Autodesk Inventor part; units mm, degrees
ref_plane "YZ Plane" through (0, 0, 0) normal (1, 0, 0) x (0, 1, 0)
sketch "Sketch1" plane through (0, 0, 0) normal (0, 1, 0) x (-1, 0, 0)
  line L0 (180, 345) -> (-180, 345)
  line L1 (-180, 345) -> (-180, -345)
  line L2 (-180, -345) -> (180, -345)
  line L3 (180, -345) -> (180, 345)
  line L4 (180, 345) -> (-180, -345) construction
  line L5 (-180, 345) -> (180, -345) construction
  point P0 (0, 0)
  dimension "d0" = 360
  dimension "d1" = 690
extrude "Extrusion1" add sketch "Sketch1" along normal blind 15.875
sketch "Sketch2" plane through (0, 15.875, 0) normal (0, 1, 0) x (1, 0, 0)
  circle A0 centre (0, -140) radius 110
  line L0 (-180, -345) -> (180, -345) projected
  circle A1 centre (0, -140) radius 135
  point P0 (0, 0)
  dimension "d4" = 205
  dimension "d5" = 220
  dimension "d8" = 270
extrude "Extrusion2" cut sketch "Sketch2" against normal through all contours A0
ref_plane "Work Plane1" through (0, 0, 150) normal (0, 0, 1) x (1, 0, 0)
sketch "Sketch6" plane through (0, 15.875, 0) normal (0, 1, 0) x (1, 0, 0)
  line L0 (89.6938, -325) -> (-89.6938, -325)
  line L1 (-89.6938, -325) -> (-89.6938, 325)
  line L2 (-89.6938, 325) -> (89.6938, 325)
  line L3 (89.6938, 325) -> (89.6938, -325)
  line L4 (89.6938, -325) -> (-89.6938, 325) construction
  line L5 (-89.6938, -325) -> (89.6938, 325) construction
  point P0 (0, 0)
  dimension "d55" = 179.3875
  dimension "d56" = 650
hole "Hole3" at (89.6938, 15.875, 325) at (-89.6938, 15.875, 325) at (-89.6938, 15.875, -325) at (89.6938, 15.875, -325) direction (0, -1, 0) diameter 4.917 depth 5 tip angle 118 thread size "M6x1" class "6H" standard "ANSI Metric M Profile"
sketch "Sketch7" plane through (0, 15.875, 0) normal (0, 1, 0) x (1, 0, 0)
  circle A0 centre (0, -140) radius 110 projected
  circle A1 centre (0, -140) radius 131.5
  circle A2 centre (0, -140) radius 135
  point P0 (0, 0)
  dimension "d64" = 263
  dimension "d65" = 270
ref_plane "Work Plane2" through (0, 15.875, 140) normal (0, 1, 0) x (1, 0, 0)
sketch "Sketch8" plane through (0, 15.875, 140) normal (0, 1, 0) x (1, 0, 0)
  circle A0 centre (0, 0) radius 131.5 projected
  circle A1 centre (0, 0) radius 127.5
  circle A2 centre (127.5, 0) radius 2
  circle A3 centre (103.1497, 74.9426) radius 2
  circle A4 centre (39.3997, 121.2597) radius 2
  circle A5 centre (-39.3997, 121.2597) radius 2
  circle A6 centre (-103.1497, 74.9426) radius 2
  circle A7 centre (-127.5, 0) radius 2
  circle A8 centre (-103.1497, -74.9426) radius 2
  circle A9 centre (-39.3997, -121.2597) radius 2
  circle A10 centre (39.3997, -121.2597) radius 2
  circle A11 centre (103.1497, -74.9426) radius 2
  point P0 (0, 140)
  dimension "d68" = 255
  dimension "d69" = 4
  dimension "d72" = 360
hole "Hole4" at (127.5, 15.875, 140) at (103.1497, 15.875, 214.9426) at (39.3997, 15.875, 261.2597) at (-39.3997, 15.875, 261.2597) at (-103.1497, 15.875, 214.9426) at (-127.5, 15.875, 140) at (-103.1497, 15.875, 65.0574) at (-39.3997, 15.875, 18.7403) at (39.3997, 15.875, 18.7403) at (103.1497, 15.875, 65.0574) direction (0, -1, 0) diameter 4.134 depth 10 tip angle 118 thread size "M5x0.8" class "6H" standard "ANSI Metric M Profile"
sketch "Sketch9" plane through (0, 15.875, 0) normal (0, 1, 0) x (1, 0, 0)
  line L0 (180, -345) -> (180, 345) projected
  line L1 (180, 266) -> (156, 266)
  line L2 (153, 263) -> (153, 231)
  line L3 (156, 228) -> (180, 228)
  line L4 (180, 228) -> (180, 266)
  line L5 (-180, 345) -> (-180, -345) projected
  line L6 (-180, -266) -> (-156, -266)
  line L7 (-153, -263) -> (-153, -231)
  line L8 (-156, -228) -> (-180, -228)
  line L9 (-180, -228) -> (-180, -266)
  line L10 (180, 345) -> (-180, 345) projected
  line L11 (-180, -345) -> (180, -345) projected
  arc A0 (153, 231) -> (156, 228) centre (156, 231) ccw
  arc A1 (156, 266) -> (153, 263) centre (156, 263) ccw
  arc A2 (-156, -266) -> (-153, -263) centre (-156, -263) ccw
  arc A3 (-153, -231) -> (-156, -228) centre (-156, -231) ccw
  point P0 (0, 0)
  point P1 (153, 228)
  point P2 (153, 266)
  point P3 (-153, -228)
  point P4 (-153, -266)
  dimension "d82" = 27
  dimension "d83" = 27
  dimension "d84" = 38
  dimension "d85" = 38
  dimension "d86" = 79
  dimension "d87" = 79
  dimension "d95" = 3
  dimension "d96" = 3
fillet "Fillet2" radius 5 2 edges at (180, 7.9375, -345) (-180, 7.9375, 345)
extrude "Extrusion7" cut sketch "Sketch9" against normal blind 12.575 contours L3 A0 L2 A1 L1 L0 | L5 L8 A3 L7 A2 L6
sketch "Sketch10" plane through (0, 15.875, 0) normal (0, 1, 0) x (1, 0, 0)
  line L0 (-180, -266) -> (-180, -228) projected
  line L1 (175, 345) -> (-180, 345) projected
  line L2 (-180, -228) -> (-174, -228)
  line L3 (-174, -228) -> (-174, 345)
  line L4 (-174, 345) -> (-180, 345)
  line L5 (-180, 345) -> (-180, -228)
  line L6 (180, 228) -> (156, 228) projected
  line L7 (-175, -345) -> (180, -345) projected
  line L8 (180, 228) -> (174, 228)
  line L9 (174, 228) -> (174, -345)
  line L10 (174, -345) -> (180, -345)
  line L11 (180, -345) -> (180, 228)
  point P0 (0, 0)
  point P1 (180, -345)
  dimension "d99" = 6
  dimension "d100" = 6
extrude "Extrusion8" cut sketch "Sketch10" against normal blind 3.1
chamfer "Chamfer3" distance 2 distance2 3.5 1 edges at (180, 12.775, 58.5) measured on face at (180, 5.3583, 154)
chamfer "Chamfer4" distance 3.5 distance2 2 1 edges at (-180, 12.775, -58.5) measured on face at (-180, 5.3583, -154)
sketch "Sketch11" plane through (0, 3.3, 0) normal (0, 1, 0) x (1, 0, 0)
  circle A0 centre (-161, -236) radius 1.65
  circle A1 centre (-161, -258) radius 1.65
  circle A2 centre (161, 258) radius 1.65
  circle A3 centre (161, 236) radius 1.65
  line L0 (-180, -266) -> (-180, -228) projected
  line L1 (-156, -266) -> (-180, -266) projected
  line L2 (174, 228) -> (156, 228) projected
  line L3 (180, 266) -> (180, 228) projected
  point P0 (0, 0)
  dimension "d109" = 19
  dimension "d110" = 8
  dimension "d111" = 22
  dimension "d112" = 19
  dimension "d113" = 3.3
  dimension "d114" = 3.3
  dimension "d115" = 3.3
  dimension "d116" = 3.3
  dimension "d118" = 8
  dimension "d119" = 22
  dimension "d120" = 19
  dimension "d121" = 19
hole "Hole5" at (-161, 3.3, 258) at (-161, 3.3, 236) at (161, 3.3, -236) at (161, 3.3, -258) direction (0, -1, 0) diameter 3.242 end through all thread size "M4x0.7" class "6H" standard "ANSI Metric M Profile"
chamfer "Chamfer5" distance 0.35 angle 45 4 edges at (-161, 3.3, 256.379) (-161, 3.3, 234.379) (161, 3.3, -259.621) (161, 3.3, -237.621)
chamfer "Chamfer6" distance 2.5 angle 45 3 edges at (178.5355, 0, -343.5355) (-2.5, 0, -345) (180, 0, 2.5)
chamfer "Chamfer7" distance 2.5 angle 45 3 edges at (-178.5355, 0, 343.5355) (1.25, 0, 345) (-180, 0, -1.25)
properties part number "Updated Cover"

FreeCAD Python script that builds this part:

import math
import FreeCAD as App
import Part
import Sketcher

V = App.Vector


def edges_at(feature, points):
    """Names of the edges that pass closest to the given points."""
    edges = feature.Shape.Edges
    near = lambda p: min(range(len(edges)), key=lambda i: edges[i].distToShape(Part.Vertex(*p))[0])
    return sorted({f"Edge{near(p) + 1}" for p in points})

doc = App.newDocument("Part")
params = doc.addObject("Spreadsheet::Sheet", "Params")
for row, (alias, value) in enumerate([
    ("sketch1_width", "360 mm"),
    ("sketch1_height", "690 mm"),
    ("pad1_length", "15.875 mm"),
    ("sketch2_diameter", "220 mm"),
    ("hole_diameter", "4.917 mm"),
    ("hole_depth", "5 mm"),
    ("hole2_diameter", "4.134 mm"),
    ("hole2_depth", "10 mm"),
    ("fillet_radius", "5 mm"),
    ("sketch5_radius", "3 mm"),
    ("sketch5_height", "38 mm"),
    ("pocket2_length", "12.575 mm"),
    ("sketch6_width", "6 mm"),
    ("sketch6_height", "573 mm"),
    ("pocket3_length", "3.1 mm"),
    ("chamfer_size", "2 mm"),
    ("chamfer_size2", "3.5 mm"),
    ("chamfer2_size", "3.5 mm"),
    ("chamfer2_size2", "2 mm"),
    ("hole3_diameter", "3.242 mm"),
    ("chamfer3_size", "0.35 mm"),
    ("chamfer4_size", "2.5 mm"),
    ("chamfer5_size", "2.5 mm"),
], start=1):
    params.set(f"A{row}", alias)
    params.set(f"B{row}", "=" + value)
    params.setAlias(f"B{row}", alias)

body = doc.addObject("PartDesign::Body", "Body")

# Sketch on XZ plane
sketch1 = body.newObject("Sketcher::SketchObject", "Sketch")
sketch1.AttachmentSupport = (doc.getObject("XZ_Plane"), [""])
sketch1.MapMode = "FlatFace"
sketch1.addGeometry([
    Part.LineSegment(V(-180, -345, 0), V(-180, 345, 0)),
    Part.LineSegment(V(-180, 345, 0), V(180, 345, 0)),
    Part.LineSegment(V(180, 345, 0), V(180, -345, 0)),
    Part.LineSegment(V(180, -345, 0), V(-180, -345, 0)),
], False)
sketch1.addConstraint([
    Sketcher.Constraint("Coincident", 0, 2, 1, 1),
    Sketcher.Constraint("Coincident", 1, 2, 2, 1),
    Sketcher.Constraint("Coincident", 2, 2, 3, 1),
    Sketcher.Constraint("Coincident", 3, 2, 0, 1),
    Sketcher.Constraint("Vertical", 0),
    Sketcher.Constraint("Horizontal", 1),
    Sketcher.Constraint("Vertical", 2),
    Sketcher.Constraint("Horizontal", 3),
    Sketcher.Constraint("Symmetric", 0, 2, 2, 2, -1, 1),
    Sketcher.Constraint("DistanceX", 1, 1, 1, 2, 360.0),
    Sketcher.Constraint("DistanceY", 0, 1, 0, 2, 690.0),
])
sketch1.setExpression("Constraints[9]", "Params.sketch1_width")
sketch1.setExpression("Constraints[10]", "Params.sketch1_height")
pad1 = body.newObject("PartDesign::Pad", "Pad")
pad1.Profile = sketch1
pad1.setExpression("Length", "Params.pad1_length")
pad1.Reversed = True

# Sketch on XZ plane
sketch2 = body.newObject("Sketcher::SketchObject", "Sketch001")
sketch2.AttachmentSupport = (doc.getObject("XZ_Plane"), [""])
sketch2.MapMode = "FlatFace"
sketch2.AttachmentOffset = App.Placement(V(0, 0, -15.875), App.Rotation())
sketch2.addGeometry(Part.Circle(V(0, 140, 0), V(0, 0, 1), 110), False)
sketch2.addConstraint([
    Sketcher.Constraint("PointOnObject", 0, 3, -2),
    Sketcher.Constraint("Diameter", 0, 220.0),
    Sketcher.Constraint("DistanceY", -1, 1, 0, 3, 140.0),
])
sketch2.setExpression("Constraints[1]", "Params.sketch2_diameter")
pocket1 = body.newObject("PartDesign::Pocket", "Pocket")
pocket1.Profile = sketch2
pocket1.Type = "ThroughAll"
pocket1.Reversed = True

# Sketch on XZ plane
sketch3 = body.newObject("Sketcher::SketchObject", "Sketch002")
sketch3.AttachmentSupport = (doc.getObject("XZ_Plane"), [""])
sketch3.MapMode = "FlatFace"
sketch3.AttachmentOffset = App.Placement(V(0, 0, -15.875), App.Rotation())
sketch3.addGeometry([
    Part.Circle(V(89.6938, 325, 0), V(0, 0, 1), 2.4585),
    Part.Circle(V(-89.6938, 325, 0), V(0, 0, 1), 2.4585),
    Part.Circle(V(-89.6938, -325, 0), V(0, 0, 1), 2.4585),
    Part.Circle(V(89.6938, -325, 0), V(0, 0, 1), 2.4585),
], False)
sketch3.addConstraint([
    Sketcher.Constraint("Equal", 0, 1),
    Sketcher.Constraint("Equal", 1, 2),
    Sketcher.Constraint("Equal", 2, 3),
    Sketcher.Constraint("Symmetric", 0, 3, 2, 3, -1, 1),
    Sketcher.Constraint("Symmetric", 1, 3, 3, 3, -1, 1),
    Sketcher.Constraint("Symmetric", 0, 3, 1, 3, -2),
    Sketcher.Constraint("Diameter", 0, 4.917),
    Sketcher.Constraint("DistanceY", -1, 1, 0, 3, 325.0),
    Sketcher.Constraint("DistanceX", -1, 1, 0, 3, 89.6938),
])
doc.recompute()
hole = body.newObject("PartDesign::Hole", "Hole")
hole.Profile = sketch3
hole.ThreadType = "None"
hole.setExpression("Diameter", "Params.hole_diameter")
hole.DepthType = "Dimension"
hole.setExpression("Depth", "Params.hole_depth")
hole.DrillPoint = "Angled"
hole.DrillPointAngle = 118
hole.Reversed = True

# Sketch on XZ plane
sketch4 = body.newObject("Sketcher::SketchObject", "Sketch003")
sketch4.AttachmentSupport = (doc.getObject("XZ_Plane"), [""])
sketch4.MapMode = "FlatFace"
sketch4.AttachmentOffset = App.Placement(V(0, 0, -15.875), App.Rotation())
sketch4.addGeometry([
    Part.Circle(V(127.5, 140, 0), V(0, 0, 1), 2.067),  # 0
    Part.Circle(V(103.1497, 214.9426, 0), V(0, 0, 1), 2.067),  # 1
    Part.Circle(V(39.3997, 261.2597, 0), V(0, 0, 1), 2.067),  # 2
    Part.Circle(V(-39.3997, 261.2597, 0), V(0, 0, 1), 2.067),  # 3
    Part.Circle(V(-103.1497, 214.9426, 0), V(0, 0, 1), 2.067),  # 4
    Part.Circle(V(-127.5, 140, 0), V(0, 0, 1), 2.067),  # 5
    Part.Circle(V(-103.1497, 65.0574, 0), V(0, 0, 1), 2.067),  # 6
    Part.Circle(V(-39.3997, 18.7403, 0), V(0, 0, 1), 2.067),  # 7
    Part.Circle(V(39.3997, 18.7403, 0), V(0, 0, 1), 2.067),  # 8
    Part.Circle(V(103.1497, 65.0574, 0), V(0, 0, 1), 2.067),  # 9
], False)
sketch4.addConstraint([
    Sketcher.Constraint("Equal", 0, 1),
    Sketcher.Constraint("Equal", 1, 2),
    Sketcher.Constraint("Equal", 2, 3),
    Sketcher.Constraint("Equal", 3, 4),
    Sketcher.Constraint("Equal", 4, 5),
    Sketcher.Constraint("Equal", 5, 6),
    Sketcher.Constraint("Equal", 6, 7),
    Sketcher.Constraint("Equal", 7, 8),
    Sketcher.Constraint("Equal", 8, 9),
    Sketcher.Constraint("Symmetric", 2, 3, 3, 3, -2),
    Sketcher.Constraint("Symmetric", 1, 3, 4, 3, -2),
    Sketcher.Constraint("Symmetric", 0, 3, 5, 3, -2),
    Sketcher.Constraint("Symmetric", 7, 3, 8, 3, -2),
    Sketcher.Constraint("Symmetric", 6, 3, 9, 3, -2),
    Sketcher.Constraint("Vertical", 4, 3, 6, 3),
    Sketcher.Constraint("Vertical", 3, 3, 7, 3),
    Sketcher.Constraint("Diameter", 0, 4.134),
    Sketcher.Constraint("DistanceY", -1, 1, 0, 3, 140.0),
    Sketcher.Constraint("DistanceX", 5, 3, 0, 3, 255.0),
    Sketcher.Constraint("DistanceX", 2, 3, 1, 3, 63.75),
    Sketcher.Constraint("DistanceY", 1, 3, 2, 3, 46.317),
    Sketcher.Constraint("DistanceY", 7, 3, 6, 3, 46.317),
    Sketcher.Constraint("DistanceX", -1, 1, 1, 3, 103.1497),
    Sketcher.Constraint("DistanceY", -1, 1, 1, 3, 214.9426),
    Sketcher.Constraint("DistanceY", -1, 1, 6, 3, 65.0574),
])
doc.recompute()
hole2 = body.newObject("PartDesign::Hole", "Hole001")
hole2.Profile = sketch4
hole2.ThreadType = "None"
hole2.setExpression("Diameter", "Params.hole2_diameter")
hole2.DepthType = "Dimension"
hole2.setExpression("Depth", "Params.hole2_depth")
hole2.DrillPoint = "Angled"
hole2.DrillPointAngle = 118
hole2.Reversed = True
doc.recompute()

fillet = body.newObject("PartDesign::Fillet", "Fillet")
fillet.Base = (hole2, edges_at(hole2, [(180, 7.938, -345), (-180, 7.938, 345)]))
fillet.setExpression("Radius", "Params.fillet_radius")

# Sketch on XZ plane
sketch5 = body.newObject("Sketcher::SketchObject", "Sketch004")
sketch5.AttachmentSupport = (doc.getObject("XZ_Plane"), [""])
sketch5.MapMode = "FlatFace"
sketch5.AttachmentOffset = App.Placement(V(0, 0, -15.875), App.Rotation())
sketch5.addGeometry([
    Part.LineSegment(V(156, -228, 0), V(180, -228, 0)),  # 0
    Part.LineSegment(V(180, -228, 0), V(180, -266, 0)),  # 1
    Part.LineSegment(V(180, -266, 0), V(156, -266, 0)),  # 2
    Part.ArcOfCircle(Part.Circle(V(156, -263, 0), V(0, 0, 1), 3), math.radians(180), math.radians(270)),  # 3
    Part.LineSegment(V(153, -263, 0), V(153, -231, 0)),  # 4
    Part.ArcOfCircle(Part.Circle(V(156, -231, 0), V(0, 0, 1), 3), math.radians(90), math.radians(180)),  # 5
    Part.LineSegment(V(-180, 228, 0), V(-180, 266, 0)),  # 6
    Part.LineSegment(V(-180, 266, 0), V(-156, 266, 0)),  # 7
    Part.ArcOfCircle(Part.Circle(V(-156, 263, 0), V(0, 0, 1), 3), math.radians(0), math.radians(90)),  # 8
    Part.LineSegment(V(-153, 263, 0), V(-153, 231, 0)),  # 9
    Part.ArcOfCircle(Part.Circle(V(-156, 231, 0), V(0, 0, 1), 3), math.radians(-90), math.radians(0)),  # 10
    Part.LineSegment(V(-156, 228, 0), V(-180, 228, 0)),  # 11
], False)
sketch5.addConstraint([
    Sketcher.Constraint("Coincident", 0, 2, 1, 1),
    Sketcher.Constraint("Coincident", 1, 2, 2, 1),
    Sketcher.Constraint("Tangent", 2, 2, 3, 2),
    Sketcher.Constraint("Tangent", 3, 1, 4, 1),
    Sketcher.Constraint("Tangent", 4, 2, 5, 2),
    Sketcher.Constraint("Tangent", 5, 1, 0, 1),
    Sketcher.Constraint("Coincident", 6, 2, 7, 1),
    Sketcher.Constraint("Tangent", 7, 2, 8, 2),
    Sketcher.Constraint("Tangent", 8, 1, 9, 1),
    Sketcher.Constraint("Tangent", 9, 2, 10, 2),
    Sketcher.Constraint("Tangent", 10, 1, 11, 1),
    Sketcher.Constraint("Coincident", 11, 2, 6, 1),
    Sketcher.Constraint("Horizontal", 0),
    Sketcher.Constraint("Vertical", 1),
    Sketcher.Constraint("Horizontal", 2),
    Sketcher.Constraint("Vertical", 4),
    Sketcher.Constraint("Vertical", 6),
    Sketcher.Constraint("Horizontal", 7),
    Sketcher.Constraint("Vertical", 9),
    Sketcher.Constraint("Horizontal", 11),
    Sketcher.Constraint("Equal", 3, 5),
    Sketcher.Constraint("Equal", 5, 8),
    Sketcher.Constraint("Equal", 8, 10),
    Sketcher.Constraint("Symmetric", 3, 3, 8, 3, -1, 1),
    Sketcher.Constraint("Symmetric", 0, 2, 11, 2, -1, 1),
    Sketcher.Constraint("Radius", 3, 3.0),
    Sketcher.Constraint("DistanceY", 1, 2, 1, 1, 38.0),
    Sketcher.Constraint("DistanceX", 3, 1, 1, 2, 27.0),
    Sketcher.Constraint("DistanceX", -1, 1, 3, 3, 156.0),
    Sketcher.Constraint("DistanceY", 3, 3, -1, 1, 263.0),
])
sketch5.setExpression("Constraints[25]", "Params.sketch5_radius")
sketch5.setExpression("Constraints[26]", "Params.sketch5_height")
pocket2 = body.newObject("PartDesign::Pocket", "Pocket001")
pocket2.Profile = sketch5
pocket2.setExpression("Length", "Params.pocket2_length")
pocket2.Reversed = True

# Sketch on XZ plane
sketch6 = body.newObject("Sketcher::SketchObject", "Sketch005")
sketch6.AttachmentSupport = (doc.getObject("XZ_Plane"), [""])
sketch6.MapMode = "FlatFace"
sketch6.AttachmentOffset = App.Placement(V(0, 0, -15.875), App.Rotation())
sketch6.addGeometry([
    Part.LineSegment(V(-174, 228, 0), V(-174, -345, 0)),  # 0
    Part.LineSegment(V(-174, -345, 0), V(-180, -345, 0)),  # 1
    Part.LineSegment(V(-180, -345, 0), V(-180, 228, 0)),  # 2
    Part.LineSegment(V(-180, 228, 0), V(-174, 228, 0)),  # 3
    Part.LineSegment(V(180, 345, 0), V(180, -228, 0)),  # 4
    Part.LineSegment(V(180, -228, 0), V(174, -228, 0)),  # 5
    Part.LineSegment(V(174, -228, 0), V(174, 345, 0)),  # 6
    Part.LineSegment(V(174, 345, 0), V(180, 345, 0)),  # 7
], False)
sketch6.addConstraint([
    Sketcher.Constraint("Coincident", 0, 2, 1, 1),
    Sketcher.Constraint("Coincident", 1, 2, 2, 1),
    Sketcher.Constraint("Coincident", 2, 2, 3, 1),
    Sketcher.Constraint("Coincident", 3, 2, 0, 1),
    Sketcher.Constraint("Coincident", 4, 2, 5, 1),
    Sketcher.Constraint("Coincident", 5, 2, 6, 1),
    Sketcher.Constraint("Coincident", 6, 2, 7, 1),
    Sketcher.Constraint("Coincident", 7, 2, 4, 1),
    Sketcher.Constraint("Vertical", 0),
    Sketcher.Constraint("Horizontal", 1),
    Sketcher.Constraint("Vertical", 2),
    Sketcher.Constraint("Horizontal", 3),
    Sketcher.Constraint("Vertical", 4),
    Sketcher.Constraint("Horizontal", 5),
    Sketcher.Constraint("Vertical", 6),
    Sketcher.Constraint("Horizontal", 7),
    Sketcher.Constraint("Symmetric", 2, 2, 4, 2, -1, 1),
    Sketcher.Constraint("Symmetric", 0, 2, 6, 2, -1, 1),
    Sketcher.Constraint("DistanceX", 1, 2, 1, 1, 6.0),
    Sketcher.Constraint("DistanceY", 0, 2, 0, 1, 573.0),
    Sketcher.Constraint("DistanceX", 0, 2, -1, 1, 174.0),
    Sketcher.Constraint("DistanceY", 0, 2, -1, 1, 345.0),
])
sketch6.setExpression("Constraints[18]", "Params.sketch6_width")
sketch6.setExpression("Constraints[19]", "Params.sketch6_height")
pocket3 = body.newObject("PartDesign::Pocket", "Pocket002")
pocket3.Profile = sketch6
pocket3.setExpression("Length", "Params.pocket3_length")
pocket3.Reversed = True
doc.recompute()

chamfer = body.newObject("PartDesign::Chamfer", "Chamfer")
chamfer.Base = (pocket3, edges_at(pocket3, [(180, 12.775, 58.5)]))
chamfer.ChamferType = "Two distances"
chamfer.setExpression("Size", "Params.chamfer_size")
chamfer.setExpression("Size2", "Params.chamfer_size2")
doc.recompute()

chamfer2 = body.newObject("PartDesign::Chamfer", "Chamfer001")
chamfer2.Base = (chamfer, edges_at(chamfer, [(-180, 12.775, -58.5)]))
chamfer2.ChamferType = "Two distances"
chamfer2.setExpression("Size", "Params.chamfer2_size")
chamfer2.setExpression("Size2", "Params.chamfer2_size2")

# Sketch on XZ plane
sketch7 = body.newObject("Sketcher::SketchObject", "Sketch006")
sketch7.AttachmentSupport = (doc.getObject("XZ_Plane"), [""])
sketch7.MapMode = "FlatFace"
sketch7.AttachmentOffset = App.Placement(V(0, 0, -3.3), App.Rotation())
sketch7.addGeometry([
    Part.Circle(V(-161, 258, 0), V(0, 0, 1), 1.621),
    Part.Circle(V(-161, 236, 0), V(0, 0, 1), 1.621),
    Part.Circle(V(161, -236, 0), V(0, 0, 1), 1.621),
    Part.Circle(V(161, -258, 0), V(0, 0, 1), 1.621),
], False)
sketch7.addConstraint([
    Sketcher.Constraint("Equal", 0, 1),
    Sketcher.Constraint("Equal", 1, 2),
    Sketcher.Constraint("Equal", 2, 3),
    Sketcher.Constraint("Symmetric", 1, 3, 2, 3, -1, 1),
    Sketcher.Constraint("Symmetric", 0, 3, 3, 3, -1, 1),
    Sketcher.Constraint("Vertical", 0, 3, 1, 3),
    Sketcher.Constraint("Diameter", 0, 3.242),
    Sketcher.Constraint("DistanceX", 0, 3, -1, 1, 161.0),
    Sketcher.Constraint("DistanceY", -1, 1, 0, 3, 258.0),
    Sketcher.Constraint("DistanceY", -1, 1, 1, 3, 236.0),
])
doc.recompute()
hole3 = body.newObject("PartDesign::Hole", "Hole002")
hole3.Profile = sketch7
hole3.ThreadType = "None"
hole3.setExpression("Diameter", "Params.hole3_diameter")
hole3.DepthType = "ThroughAll"
hole3.Reversed = True
doc.recompute()

chamfer3 = body.newObject("PartDesign::Chamfer", "Chamfer002")
chamfer3.Base = (hole3, edges_at(hole3, [
    (-161, 3.3, 256.379),
    (-161, 3.3, 234.379),
    (161, 3.3, -259.621),
    (161, 3.3, -237.621),
]))
chamfer3.setExpression("Size", "Params.chamfer3_size")
doc.recompute()

chamfer4 = body.newObject("PartDesign::Chamfer", "Chamfer003")
chamfer4.Base = (chamfer3, edges_at(chamfer3, [(178.536, 0, -343.536), (-2.5, 0, -345), (180, 0, 2.5)]))
chamfer4.setExpression("Size", "Params.chamfer4_size")
doc.recompute()

chamfer5 = body.newObject("PartDesign::Chamfer", "Chamfer004")
chamfer5.Base = (chamfer4, edges_at(chamfer4, [(-178.536, 0, 343.536), (1.25, 0, 345), (-180, 0, -1.25)]))
chamfer5.setExpression("Size", "Params.chamfer5_size")

doc.recompute()
